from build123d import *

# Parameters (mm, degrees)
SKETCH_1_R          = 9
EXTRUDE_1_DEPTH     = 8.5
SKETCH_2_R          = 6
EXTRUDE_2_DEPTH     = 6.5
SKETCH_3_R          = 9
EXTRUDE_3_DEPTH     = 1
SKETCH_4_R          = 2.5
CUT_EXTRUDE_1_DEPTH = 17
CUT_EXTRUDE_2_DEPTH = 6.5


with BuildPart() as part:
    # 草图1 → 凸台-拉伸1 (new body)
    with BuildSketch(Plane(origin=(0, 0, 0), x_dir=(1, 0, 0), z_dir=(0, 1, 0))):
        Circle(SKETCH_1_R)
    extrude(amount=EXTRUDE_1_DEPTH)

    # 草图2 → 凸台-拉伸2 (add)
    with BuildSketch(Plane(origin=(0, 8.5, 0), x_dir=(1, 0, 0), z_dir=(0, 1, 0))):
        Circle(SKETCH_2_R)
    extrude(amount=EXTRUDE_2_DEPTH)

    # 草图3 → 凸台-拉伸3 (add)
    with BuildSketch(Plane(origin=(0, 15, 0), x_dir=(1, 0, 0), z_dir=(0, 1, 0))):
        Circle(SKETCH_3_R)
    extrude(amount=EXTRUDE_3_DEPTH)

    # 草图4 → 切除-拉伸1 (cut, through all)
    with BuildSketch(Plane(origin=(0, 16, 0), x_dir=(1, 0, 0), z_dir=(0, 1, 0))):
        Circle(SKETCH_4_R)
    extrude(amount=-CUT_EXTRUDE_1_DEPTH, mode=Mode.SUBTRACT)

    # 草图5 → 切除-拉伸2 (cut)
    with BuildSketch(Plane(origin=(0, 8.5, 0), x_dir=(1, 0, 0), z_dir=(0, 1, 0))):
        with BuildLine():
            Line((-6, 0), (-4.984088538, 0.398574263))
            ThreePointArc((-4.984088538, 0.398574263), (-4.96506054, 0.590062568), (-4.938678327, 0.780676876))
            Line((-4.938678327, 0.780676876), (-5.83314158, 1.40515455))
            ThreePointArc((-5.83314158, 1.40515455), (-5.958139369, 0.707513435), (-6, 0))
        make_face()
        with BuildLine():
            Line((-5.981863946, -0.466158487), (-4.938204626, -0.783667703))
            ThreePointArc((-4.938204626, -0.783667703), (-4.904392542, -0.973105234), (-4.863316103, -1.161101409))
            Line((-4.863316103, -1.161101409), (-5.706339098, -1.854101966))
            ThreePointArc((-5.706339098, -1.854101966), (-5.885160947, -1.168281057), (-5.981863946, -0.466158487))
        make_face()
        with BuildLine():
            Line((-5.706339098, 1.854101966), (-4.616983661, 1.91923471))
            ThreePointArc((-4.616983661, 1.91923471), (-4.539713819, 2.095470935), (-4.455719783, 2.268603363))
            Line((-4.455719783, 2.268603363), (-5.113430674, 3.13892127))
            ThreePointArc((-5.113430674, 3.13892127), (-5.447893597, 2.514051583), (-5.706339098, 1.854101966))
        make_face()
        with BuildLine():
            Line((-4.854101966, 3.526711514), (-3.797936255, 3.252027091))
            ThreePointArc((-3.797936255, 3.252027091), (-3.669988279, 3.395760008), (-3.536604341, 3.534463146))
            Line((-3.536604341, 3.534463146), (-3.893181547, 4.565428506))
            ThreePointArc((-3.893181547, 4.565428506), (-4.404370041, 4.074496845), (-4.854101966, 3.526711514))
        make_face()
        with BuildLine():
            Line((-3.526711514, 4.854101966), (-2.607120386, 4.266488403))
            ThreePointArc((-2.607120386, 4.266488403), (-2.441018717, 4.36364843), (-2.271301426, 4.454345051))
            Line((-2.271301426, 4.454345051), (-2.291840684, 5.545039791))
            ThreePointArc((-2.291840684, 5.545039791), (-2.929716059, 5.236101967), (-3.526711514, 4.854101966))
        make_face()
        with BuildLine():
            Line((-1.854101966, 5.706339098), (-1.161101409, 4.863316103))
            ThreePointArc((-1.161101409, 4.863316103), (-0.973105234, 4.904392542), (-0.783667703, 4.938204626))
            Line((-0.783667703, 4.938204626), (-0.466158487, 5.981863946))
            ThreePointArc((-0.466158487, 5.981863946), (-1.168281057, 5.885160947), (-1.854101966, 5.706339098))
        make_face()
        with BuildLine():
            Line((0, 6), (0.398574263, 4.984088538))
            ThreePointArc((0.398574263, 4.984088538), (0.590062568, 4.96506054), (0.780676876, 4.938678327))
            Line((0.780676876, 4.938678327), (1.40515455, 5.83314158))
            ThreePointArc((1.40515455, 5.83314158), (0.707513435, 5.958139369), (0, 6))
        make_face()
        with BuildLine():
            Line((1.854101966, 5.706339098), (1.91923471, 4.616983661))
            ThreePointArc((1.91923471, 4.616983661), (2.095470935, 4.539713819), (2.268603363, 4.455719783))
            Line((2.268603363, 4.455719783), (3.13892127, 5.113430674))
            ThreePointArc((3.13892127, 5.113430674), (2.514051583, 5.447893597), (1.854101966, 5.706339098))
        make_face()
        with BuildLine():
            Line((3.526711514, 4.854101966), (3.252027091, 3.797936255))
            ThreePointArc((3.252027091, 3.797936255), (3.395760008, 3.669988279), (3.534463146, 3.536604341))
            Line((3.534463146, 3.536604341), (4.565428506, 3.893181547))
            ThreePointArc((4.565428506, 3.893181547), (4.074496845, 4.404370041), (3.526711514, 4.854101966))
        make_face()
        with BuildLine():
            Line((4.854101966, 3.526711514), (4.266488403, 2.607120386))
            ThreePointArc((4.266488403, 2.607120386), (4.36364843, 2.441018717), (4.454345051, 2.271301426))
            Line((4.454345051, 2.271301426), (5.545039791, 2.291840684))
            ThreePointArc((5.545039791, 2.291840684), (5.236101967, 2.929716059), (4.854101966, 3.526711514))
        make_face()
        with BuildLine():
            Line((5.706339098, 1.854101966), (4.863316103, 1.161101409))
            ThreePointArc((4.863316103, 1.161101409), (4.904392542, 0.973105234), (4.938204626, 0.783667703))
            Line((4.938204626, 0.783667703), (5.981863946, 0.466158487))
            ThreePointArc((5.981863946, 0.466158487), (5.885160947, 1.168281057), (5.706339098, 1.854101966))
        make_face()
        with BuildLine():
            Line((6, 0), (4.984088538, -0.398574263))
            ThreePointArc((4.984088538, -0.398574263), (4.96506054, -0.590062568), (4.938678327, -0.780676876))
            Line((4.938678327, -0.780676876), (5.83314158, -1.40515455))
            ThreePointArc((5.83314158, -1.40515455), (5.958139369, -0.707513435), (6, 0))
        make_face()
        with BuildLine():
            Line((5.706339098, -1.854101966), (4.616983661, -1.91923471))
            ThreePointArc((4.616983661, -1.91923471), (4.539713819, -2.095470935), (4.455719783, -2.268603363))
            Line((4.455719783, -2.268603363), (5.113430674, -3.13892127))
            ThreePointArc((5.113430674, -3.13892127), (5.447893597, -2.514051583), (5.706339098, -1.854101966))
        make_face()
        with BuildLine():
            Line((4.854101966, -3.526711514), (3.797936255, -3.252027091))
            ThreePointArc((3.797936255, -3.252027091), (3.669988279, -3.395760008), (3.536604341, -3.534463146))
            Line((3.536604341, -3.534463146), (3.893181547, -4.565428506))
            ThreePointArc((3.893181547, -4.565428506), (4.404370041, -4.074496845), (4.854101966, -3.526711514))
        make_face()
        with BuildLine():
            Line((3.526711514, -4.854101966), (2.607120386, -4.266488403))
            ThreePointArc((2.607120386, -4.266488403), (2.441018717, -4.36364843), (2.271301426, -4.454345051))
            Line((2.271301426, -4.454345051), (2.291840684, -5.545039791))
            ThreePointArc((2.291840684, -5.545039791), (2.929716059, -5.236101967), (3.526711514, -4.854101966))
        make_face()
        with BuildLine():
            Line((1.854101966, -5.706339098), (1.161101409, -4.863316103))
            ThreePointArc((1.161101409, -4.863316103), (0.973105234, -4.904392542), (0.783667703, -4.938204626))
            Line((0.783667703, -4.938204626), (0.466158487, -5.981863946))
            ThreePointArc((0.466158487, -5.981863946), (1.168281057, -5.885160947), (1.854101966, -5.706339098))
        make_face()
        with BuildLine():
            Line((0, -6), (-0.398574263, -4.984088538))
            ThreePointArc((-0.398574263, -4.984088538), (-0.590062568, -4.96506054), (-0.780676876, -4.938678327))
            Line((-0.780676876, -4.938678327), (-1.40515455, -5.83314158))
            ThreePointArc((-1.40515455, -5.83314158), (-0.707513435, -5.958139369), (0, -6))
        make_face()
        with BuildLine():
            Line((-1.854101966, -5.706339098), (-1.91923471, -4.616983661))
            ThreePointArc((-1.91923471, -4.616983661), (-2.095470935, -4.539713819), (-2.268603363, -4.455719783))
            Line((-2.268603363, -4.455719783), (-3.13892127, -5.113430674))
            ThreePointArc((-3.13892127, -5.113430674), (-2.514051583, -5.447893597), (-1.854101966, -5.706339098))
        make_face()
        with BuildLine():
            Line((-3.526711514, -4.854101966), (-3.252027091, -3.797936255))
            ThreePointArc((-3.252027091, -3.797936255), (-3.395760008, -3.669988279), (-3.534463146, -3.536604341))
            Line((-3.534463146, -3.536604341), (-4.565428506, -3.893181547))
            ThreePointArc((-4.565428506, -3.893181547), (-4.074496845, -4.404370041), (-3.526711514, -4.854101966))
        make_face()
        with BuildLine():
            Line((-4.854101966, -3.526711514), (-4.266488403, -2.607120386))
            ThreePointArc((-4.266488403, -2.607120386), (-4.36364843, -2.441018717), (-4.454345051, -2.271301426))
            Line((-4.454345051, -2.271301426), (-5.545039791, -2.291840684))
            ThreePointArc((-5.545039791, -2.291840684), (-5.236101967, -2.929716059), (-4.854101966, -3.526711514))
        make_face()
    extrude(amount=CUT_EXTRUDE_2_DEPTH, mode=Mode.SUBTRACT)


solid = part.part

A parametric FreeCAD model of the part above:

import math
import FreeCAD as App
import Part
import Sketcher

doc = App.newDocument("Part")
body = doc.addObject("PartDesign::Body", "Body")

# Sketch on XZ plane
sketch1 = doc.addObject("Sketcher::SketchObject", "Sketch")
body.addObject(sketch1)
sketch1.AttachmentSupport = (doc.XZ_Plane, [""])
sketch1.MapMode = "FlatFace"
sketch1.addGeometry(Part.Circle(App.Vector(0, 0, 0), App.Vector(0, 0, 1), 9), False)
sketch1.addConstraint([
    Sketcher.Constraint("Coincident", 0, 3, -1, 1),
    Sketcher.Constraint("Diameter", 0, 18.0),
])
pad1 = doc.addObject("PartDesign::Pad", "Pad")
body.addObject(pad1)
pad1.Profile = sketch1
pad1.Length = 8.5
pad1.Reversed = True

# Sketch on XZ plane
sketch2 = doc.addObject("Sketcher::SketchObject", "Sketch001")
body.addObject(sketch2)
sketch2.AttachmentSupport = (doc.XZ_Plane, [""])
sketch2.MapMode = "FlatFace"
sketch2.AttachmentOffset = App.Placement(App.Vector(0, 0, -8.5), App.Rotation())
sketch2.addGeometry(Part.Circle(App.Vector(0, 0, 0), App.Vector(0, 0, 1), 6), False)
sketch2.addConstraint([
    Sketcher.Constraint("Coincident", 0, 3, -1, 1),
    Sketcher.Constraint("Diameter", 0, 12.0),
])
pad2 = doc.addObject("PartDesign::Pad", "Pad001")
body.addObject(pad2)
pad2.Profile = sketch2
pad2.Length = 6.5
pad2.Reversed = True

# Sketch on XZ plane
sketch3 = doc.addObject("Sketcher::SketchObject", "Sketch002")
body.addObject(sketch3)
sketch3.AttachmentSupport = (doc.XZ_Plane, [""])
sketch3.MapMode = "FlatFace"
sketch3.AttachmentOffset = App.Placement(App.Vector(0, 0, -15), App.Rotation())
sketch3.addGeometry(Part.Circle(App.Vector(0, 0, 0), App.Vector(0, 0, 1), 9), False)
sketch3.addConstraint([
    Sketcher.Constraint("Coincident", 0, 3, -1, 1),
    Sketcher.Constraint("Diameter", 0, 18.0),
])
pad3 = doc.addObject("PartDesign::Pad", "Pad002")
body.addObject(pad3)
pad3.Profile = sketch3
pad3.Length = 1
pad3.Reversed = True

# Sketch on XZ plane
sketch4 = doc.addObject("Sketcher::SketchObject", "Sketch003")
body.addObject(sketch4)
sketch4.AttachmentSupport = (doc.XZ_Plane, [""])
sketch4.MapMode = "FlatFace"
sketch4.AttachmentOffset = App.Placement(App.Vector(0, 0, -16), App.Rotation())
sketch4.addGeometry(Part.Circle(App.Vector(0, 0, 0), App.Vector(0, 0, 1), 2.5), False)
sketch4.addConstraint([
    Sketcher.Constraint("Coincident", 0, 3, -1, 1),
    Sketcher.Constraint("Diameter", 0, 5.0),
])
pocket1 = doc.addObject("PartDesign::Pocket", "Pocket")
body.addObject(pocket1)
pocket1.Profile = sketch4
pocket1.Type = "ThroughAll"
pocket1.Reversed = True

# Sketch on XZ plane
sketch5 = doc.addObject("Sketcher::SketchObject", "Sketch004")
body.addObject(sketch5)
sketch5.AttachmentSupport = (doc.XZ_Plane, [""])
sketch5.MapMode = "FlatFace"
sketch5.AttachmentOffset = App.Placement(App.Vector(0, 0, -8.5), App.Rotation())
sketch5.addGeometry([
    Part.LineSegment(App.Vector(-6, 0, 0), App.Vector(-4.984089, -0.398574, 0)),  # 0
    Part.ArcOfCircle(Part.Circle(App.Vector(0, 0, 0), App.Vector(0, 0, 1), 5), math.radians(-175.427824), math.radians(-171.01735)),  # 1
    Part.LineSegment(App.Vector(-4.938678, -0.780677, 0), App.Vector(-5.833142, -1.405155, 0)),  # 2
    Part.ArcOfCircle(Part.Circle(App.Vector(0, 0, 0), App.Vector(0, 0, 1), 6), math.radians(180), math.radians(193.544024)),  # 3
    Part.LineSegment(App.Vector(-4.938205, 0.783668, 0), App.Vector(-5.981864, 0.466158, 0)),  # 4
    Part.ArcOfCircle(Part.Circle(App.Vector(0, 0, 0), App.Vector(0, 0, 1), 6), math.radians(162), math.radians(175.544024)),  # 5
    Part.LineSegment(App.Vector(-5.706339, 1.854102, 0), App.Vector(-4.863316, 1.161101, 0)),  # 6
    Part.ArcOfCircle(Part.Circle(App.Vector(-0.000001, 0, 0), App.Vector(0, 0, 1), 4.999999), math.radians(166.572175), math.radians(170.982651)),  # 7
    Part.LineSegment(App.Vector(-5.706339, -1.854102, 0), App.Vector(-4.616984, -1.919235, 0)),  # 8
    Part.ArcOfCircle(Part.Circle(App.Vector(0, 0, 0), App.Vector(0, 0, 1), 5), math.radians(-157.427824), math.radians(-153.01735)),  # 9
    Part.LineSegment(App.Vector(-4.45572, -2.268603, 0), App.Vector(-5.113431, -3.138921, 0)),  # 10
    Part.ArcOfCircle(Part.Circle(App.Vector(0, 0, 0), App.Vector(0, 0, 1), 6), math.radians(-162), math.radians(-148.455976)),  # 11
    Part.LineSegment(App.Vector(-4.854102, -3.526712, 0), App.Vector(-3.797936, -3.252027, 0)),  # 12
    Part.ArcOfCircle(Part.Circle(App.Vector(0, 0, 0), App.Vector(0, 0, 1), 5), math.radians(-139.427825), math.radians(-135.01735)),  # 13
    Part.LineSegment(App.Vector(-3.536604, -3.534463, 0), App.Vector(-3.893182, -4.565429, 0)),  # 14
    Part.ArcOfCircle(Part.Circle(App.Vector(0, 0, 0), App.Vector(0, 0, 1), 6), math.radians(-144), math.radians(-130.455976)),  # 15
    Part.LineSegment(App.Vector(-3.526712, -4.854102, 0), App.Vector(-2.60712, -4.266488, 0)),  # 16
    Part.ArcOfCircle(Part.Circle(App.Vector(0, 0, 0), App.Vector(0, 0, 1), 5), math.radians(-121.427824), math.radians(-117.01735)),  # 17
    Part.LineSegment(App.Vector(-2.271301, -4.454345, 0), App.Vector(-2.291841, -5.54504, 0)),  # 18
    Part.ArcOfCircle(Part.Circle(App.Vector(0, 0, 0), App.Vector(0, 0, 1), 6), math.radians(-126), math.radians(-112.455976)),  # 19
    Part.LineSegment(App.Vector(-1.854102, -5.706339, 0), App.Vector(-1.161101, -4.863316, 0)),  # 20
    Part.ArcOfCircle(Part.Circle(App.Vector(0, -0.000001, 0), App.Vector(0, 0, 1), 4.999999), math.radians(-103.427825), math.radians(-99.017349)),  # 21
    Part.LineSegment(App.Vector(-0.783668, -4.938205, 0), App.Vector(-0.466158, -5.981864, 0)),  # 22
    Part.ArcOfCircle(Part.Circle(App.Vector(0, 0, 0), App.Vector(0, 0, 1), 6), math.radians(-108), math.radians(-94.455976)),  # 23
    Part.LineSegment(App.Vector(0, -6, 0), App.Vector(0.398574, -4.984089, 0)),  # 24
    Part.ArcOfCircle(Part.Circle(App.Vector(0, 0, 0), App.Vector(0, 0, 1), 5), math.radians(-85.427824), math.radians(-81.01735)),  # 25
    Part.LineSegment(App.Vector(0.780677, -4.938678, 0), App.Vector(1.405155, -5.833142, 0)),  # 26
    Part.ArcOfCircle(Part.Circle(App.Vector(0, 0, 0), App.Vector(0, 0, 1), 6), math.radians(-90), math.radians(-76.455976)),  # 27
    Part.LineSegment(App.Vector(1.854102, -5.706339, 0), App.Vector(1.919235, -4.616984, 0)),  # 28
    Part.ArcOfCircle(Part.Circle(App.Vector(0, 0, 0), App.Vector(0, 0, 1), 5), math.radians(-67.427824), math.radians(-63.01735)),  # 29
    Part.LineSegment(App.Vector(2.268603, -4.45572, 0), App.Vector(3.138921, -5.113431, 0)),  # 30
    Part.ArcOfCircle(Part.Circle(App.Vector(0, 0, 0), App.Vector(0, 0, 1), 6), math.radians(-72), math.radians(-58.455976)),  # 31
    Part.LineSegment(App.Vector(3.526712, -4.854102, 0), App.Vector(3.252027, -3.797936, 0)),  # 32
    Part.ArcOfCircle(Part.Circle(App.Vector(0, 0, 0), App.Vector(0, 0, 1), 5), math.radians(-49.427825), math.radians(-45.01735)),  # 33
    Part.LineSegment(App.Vector(3.534463, -3.536604, 0), App.Vector(4.565429, -3.893182, 0)),  # 34
    Part.ArcOfCircle(Part.Circle(App.Vector(0, 0, 0), App.Vector(0, 0, 1), 6), math.radians(-54), math.radians(-40.455976)),  # 35
    Part.LineSegment(App.Vector(4.854102, -3.526712, 0), App.Vector(4.266488, -2.60712, 0)),  # 36
    Part.ArcOfCircle(Part.Circle(App.Vector(0, 0, 0), App.Vector(0, 0, 1), 5), math.radians(-31.427824), math.radians(-27.01735)),  # 37
    Part.LineSegment(App.Vector(4.454345, -2.271301, 0), App.Vector(5.54504, -2.291841, 0)),  # 38
    Part.ArcOfCircle(Part.Circle(App.Vector(0, 0, 0), App.Vector(0, 0, 1), 6), math.radians(-36), math.radians(-22.455976)),  # 39
    Part.LineSegment(App.Vector(5.706339, -1.854102, 0), App.Vector(4.863316, -1.161101, 0)),  # 40
    Part.ArcOfCircle(Part.Circle(App.Vector(0.000001, 0, 0), App.Vector(0, 0, 1), 4.999999), math.radians(-13.427825), math.radians(-9.017349)),  # 41
    Part.LineSegment(App.Vector(4.938205, -0.783668, 0), App.Vector(5.981864, -0.466158, 0)),  # 42
    Part.ArcOfCircle(Part.Circle(App.Vector(0, 0, 0), App.Vector(0, 0, 1), 6), math.radians(-18), math.radians(-4.455976)),  # 43
    Part.LineSegment(App.Vector(6, 0, 0), App.Vector(4.984089, 0.398574, 0)),  # 44
    Part.ArcOfCircle(Part.Circle(App.Vector(0, 0, 0), App.Vector(0, 0, 1), 5), math.radians(4.572176), math.radians(8.98265)),  # 45
    Part.LineSegment(App.Vector(4.938678, 0.780677, 0), App.Vector(5.833142, 1.405155, 0)),  # 46
    Part.ArcOfCircle(Part.Circle(App.Vector(0, 0, 0), App.Vector(0, 0, 1), 6), math.radians(0), math.radians(13.544024)),  # 47
    Part.LineSegment(App.Vector(5.706339, 1.854102, 0), App.Vector(4.616984, 1.919235, 0)),  # 48
    Part.ArcOfCircle(Part.Circle(App.Vector(0, 0, 0), App.Vector(0, 0, 1), 5), math.radians(22.572176), math.radians(26.98265)),  # 49
    Part.LineSegment(App.Vector(4.45572, 2.268603, 0), App.Vector(5.113431, 3.138921, 0)),  # 50
    Part.ArcOfCircle(Part.Circle(App.Vector(0, 0, 0), App.Vector(0, 0, 1), 6), math.radians(18), math.radians(31.544024)),  # 51
    Part.LineSegment(App.Vector(4.854102, 3.526712, 0), App.Vector(3.797936, 3.252027, 0)),  # 52
    Part.ArcOfCircle(Part.Circle(App.Vector(0, 0, 0), App.Vector(0, 0, 1), 5), math.radians(40.572175), math.radians(44.98265)),  # 53
    Part.LineSegment(App.Vector(3.536604, 3.534463, 0), App.Vector(3.893182, 4.565429, 0)),  # 54
    Part.ArcOfCircle(Part.Circle(App.Vector(0, 0, 0), App.Vector(0, 0, 1), 6), math.radians(36), math.radians(49.544024)),  # 55
    Part.LineSegment(App.Vector(3.526712, 4.854102, 0), App.Vector(2.60712, 4.266488, 0)),  # 56
    Part.ArcOfCircle(Part.Circle(App.Vector(0, 0, 0), App.Vector(0, 0, 1), 5), math.radians(58.572176), math.radians(62.98265)),  # 57
    Part.LineSegment(App.Vector(2.271301, 4.454345, 0), App.Vector(2.291841, 5.54504, 0)),  # 58
    Part.ArcOfCircle(Part.Circle(App.Vector(0, 0, 0), App.Vector(0, 0, 1), 6), math.radians(54), math.radians(67.544024)),  # 59
    Part.LineSegment(App.Vector(1.854102, 5.706339, 0), App.Vector(1.161101, 4.863316, 0)),  # 60
    Part.ArcOfCircle(Part.Circle(App.Vector(0, 0.000001, 0), App.Vector(0, 0, 1), 4.999999), math.radians(76.572175), math.radians(80.982651)),  # 61
    Part.LineSegment(App.Vector(0.783668, 4.938205, 0), App.Vector(0.466158, 5.981864, 0)),  # 62
    Part.ArcOfCircle(Part.Circle(App.Vector(0, 0, 0), App.Vector(0, 0, 1), 6), math.radians(72), math.radians(85.544024)),  # 63
    Part.LineSegment(App.Vector(0, 6, 0), App.Vector(-0.398574, 4.984089, 0)),  # 64
    Part.ArcOfCircle(Part.Circle(App.Vector(0, 0, 0), App.Vector(0, 0, 1), 5), math.radians(94.572176), math.radians(98.98265)),  # 65
    Part.LineSegment(App.Vector(-0.780677, 4.938678, 0), App.Vector(-1.405155, 5.833142, 0)),  # 66
    Part.ArcOfCircle(Part.Circle(App.Vector(0, 0, 0), App.Vector(0, 0, 1), 6), math.radians(90), math.radians(103.544024)),  # 67
    Part.LineSegment(App.Vector(-1.854102, 5.706339, 0), App.Vector(-1.919235, 4.616984, 0)),  # 68
    Part.ArcOfCircle(Part.Circle(App.Vector(0, 0, 0), App.Vector(0, 0, 1), 5), math.radians(112.572176), math.radians(116.98265)),  # 69
    Part.LineSegment(App.Vector(-2.268603, 4.45572, 0), App.Vector(-3.138921, 5.113431, 0)),  # 70
    Part.ArcOfCircle(Part.Circle(App.Vector(0, 0, 0), App.Vector(0, 0, 1), 6), math.radians(108), math.radians(121.544024)),  # 71
    Part.LineSegment(App.Vector(-3.526712, 4.854102, 0), App.Vector(-3.252027, 3.797936, 0)),  # 72
    Part.ArcOfCircle(Part.Circle(App.Vector(0, 0, 0), App.Vector(0, 0, 1), 5), math.radians(130.572175), math.radians(134.98265)),  # 73
    Part.LineSegment(App.Vector(-3.534463, 3.536604, 0), App.Vector(-4.565429, 3.893182, 0)),  # 74
    Part.ArcOfCircle(Part.Circle(App.Vector(0, 0, 0), App.Vector(0, 0, 1), 6), math.radians(126), math.radians(139.544024)),  # 75
    Part.LineSegment(App.Vector(-4.854102, 3.526712, 0), App.Vector(-4.266488, 2.60712, 0)),  # 76
    Part.ArcOfCircle(Part.Circle(App.Vector(0, 0, 0), App.Vector(0, 0, 1), 5), math.radians(148.572176), math.radians(152.98265)),  # 77
    Part.LineSegment(App.Vector(-4.454345, 2.271301, 0), App.Vector(-5.54504, 2.291841, 0)),  # 78
    Part.ArcOfCircle(Part.Circle(App.Vector(0, 0, 0), App.Vector(0, 0, 1), 6), math.radians(144), math.radians(157.544024)),  # 79
], False)
sketch5.addConstraint([
    Sketcher.Constraint("Coincident", 0, 2, 1, 1),
    Sketcher.Constraint("Coincident", 1, 2, 2, 1),
    Sketcher.Constraint("Coincident", 2, 2, 3, 2),
    Sketcher.Constraint("Coincident", 3, 1, 0, 1),
    Sketcher.Constraint("Coincident", 4, 2, 5, 2),
    Sketcher.Constraint("Coincident", 5, 1, 6, 1),
    Sketcher.Constraint("Coincident", 6, 2, 7, 1),
    Sketcher.Constraint("Coincident", 7, 2, 4, 1),
    Sketcher.Constraint("Coincident", 8, 2, 9, 1),
    Sketcher.Constraint("Coincident", 9, 2, 10, 1),
    Sketcher.Constraint("Coincident", 10, 2, 11, 2),
    Sketcher.Constraint("Coincident", 11, 1, 8, 1),
    Sketcher.Constraint("Coincident", 12, 2, 13, 1),
    Sketcher.Constraint("Coincident", 13, 2, 14, 1),
    Sketcher.Constraint("Coincident", 14, 2, 15, 2),
    Sketcher.Constraint("Coincident", 15, 1, 12, 1),
    Sketcher.Constraint("Coincident", 16, 2, 17, 1),
    Sketcher.Constraint("Coincident", 17, 2, 18, 1),
    Sketcher.Constraint("Coincident", 18, 2, 19, 2),
    Sketcher.Constraint("Coincident", 19, 1, 16, 1),
    Sketcher.Constraint("Coincident", 20, 2, 21, 1),
    Sketcher.Constraint("Coincident", 21, 2, 22, 1),
    Sketcher.Constraint("Coincident", 22, 2, 23, 2),
    Sketcher.Constraint("Coincident", 23, 1, 20, 1),
    Sketcher.Constraint("Coincident", 24, 2, 25, 1),
    Sketcher.Constraint("Coincident", 25, 2, 26, 1),
    Sketcher.Constraint("Coincident", 26, 2, 27, 2),
    Sketcher.Constraint("Coincident", 27, 1, 24, 1),
    Sketcher.Constraint("Coincident", 28, 2, 29, 1),
    Sketcher.Constraint("Coincident", 29, 2, 30, 1),
    Sketcher.Constraint("Coincident", 30, 2, 31, 2),
    Sketcher.Constraint("Coincident", 31, 1, 28, 1),
    Sketcher.Constraint("Coincident", 32, 2, 33, 1),
    Sketcher.Constraint("Coincident", 33, 2, 34, 1),
    Sketcher.Constraint("Coincident", 34, 2, 35, 2),
    Sketcher.Constraint("Coincident", 35, 1, 32, 1),
    Sketcher.Constraint("Coincident", 36, 2, 37, 1),
    Sketcher.Constraint("Coincident", 37, 2, 38, 1),
    Sketcher.Constraint("Coincident", 38, 2, 39, 2),
    Sketcher.Constraint("Coincident", 39, 1, 36, 1),
    Sketcher.Constraint("Coincident", 40, 2, 41, 1),
    Sketcher.Constraint("Coincident", 41, 2, 42, 1),
    Sketcher.Constraint("Coincident", 42, 2, 43, 2),
    Sketcher.Constraint("Coincident", 43, 1, 40, 1),
    Sketcher.Constraint("Coincident", 44, 2, 45, 1),
    Sketcher.Constraint("Coincident", 45, 2, 46, 1),
    Sketcher.Constraint("Coincident", 46, 2, 47, 2),
    Sketcher.Constraint("Coincident", 47, 1, 44, 1),
    Sketcher.Constraint("Coincident", 48, 2, 49, 1),
    Sketcher.Constraint("Coincident", 49, 2, 50, 1),
    Sketcher.Constraint("Coincident", 50, 2, 51, 2),
    Sketcher.Constraint("Coincident", 51, 1, 48, 1),
    Sketcher.Constraint("Coincident", 52, 2, 53, 1),
    Sketcher.Constraint("Coincident", 53, 2, 54, 1),
    Sketcher.Constraint("Coincident", 54, 2, 55, 2),
    Sketcher.Constraint("Coincident", 55, 1, 52, 1),
    Sketcher.Constraint("Coincident", 56, 2, 57, 1),
    Sketcher.Constraint("Coincident", 57, 2, 58, 1),
    Sketcher.Constraint("Coincident", 58, 2, 59, 2),
    Sketcher.Constraint("Coincident", 59, 1, 56, 1),
    Sketcher.Constraint("Coincident", 60, 2, 61, 1),
    Sketcher.Constraint("Coincident", 61, 2, 62, 1),
    Sketcher.Constraint("Coincident", 62, 2, 63, 2),
    Sketcher.Constraint("Coincident", 63, 1, 60, 1),
    Sketcher.Constraint("Coincident", 64, 2, 65, 1),
    Sketcher.Constraint("Coincident", 65, 2, 66, 1),
    Sketcher.Constraint("Coincident", 66, 2, 67, 2),
    Sketcher.Constraint("Coincident", 67, 1, 64, 1),
    Sketcher.Constraint("Coincident", 68, 2, 69, 1),
    Sketcher.Constraint("Coincident", 69, 2, 70, 1),
    Sketcher.Constraint("Coincident", 70, 2, 71, 2),
    Sketcher.Constraint("Coincident", 71, 1, 68, 1),
    Sketcher.Constraint("Coincident", 72, 2, 73, 1),
    Sketcher.Constraint("Coincident", 73, 2, 74, 1),
    Sketcher.Constraint("Coincident", 74, 2, 75, 2),
    Sketcher.Constraint("Coincident", 75, 1, 72, 1),
    Sketcher.Constraint("Coincident", 76, 2, 77, 1),
    Sketcher.Constraint("Coincident", 77, 2, 78, 1),
    Sketcher.Constraint("Coincident", 78, 2, 79, 2),
    Sketcher.Constraint("Coincident", 79, 1, 76, 1),
    Sketcher.Constraint("Coincident", 1, 3, -1, 1),
    Sketcher.Constraint("Coincident", 3, 3, -1, 1),
    Sketcher.Constraint("Coincident", 5, 3, -1, 1),
    Sketcher.Constraint("Coincident", 7, 3, -1, 1),
    Sketcher.Constraint("Coincident", 9, 3, -1, 1),
    Sketcher.Constraint("Coincident", 11, 3, -1, 1),
    Sketcher.Constraint("Coincident", 13, 3, -1, 1),
    Sketcher.Constraint("Coincident", 15, 3, -1, 1),
    Sketcher.Constraint("Coincident", 17, 3, -1, 1),
    Sketcher.Constraint("Coincident", 19, 3, -1, 1),
    Sketcher.Constraint("Coincident", 21, 3, -1, 1),
    Sketcher.Constraint("Coincident", 23, 3, -1, 1),
    Sketcher.Constraint("Coincident", 25, 3, -1, 1),
    Sketcher.Constraint("Coincident", 27, 3, -1, 1),
    Sketcher.Constraint("Coincident", 29, 3, -1, 1),
    Sketcher.Constraint("Coincident", 31, 3, -1, 1),
    Sketcher.Constraint("Coincident", 33, 3, -1, 1),
    Sketcher.Constraint("Coincident", 35, 3, -1, 1),
    Sketcher.Constraint("Coincident", 37, 3, -1, 1),
    Sketcher.Constraint("Coincident", 39, 3, -1, 1),
    Sketcher.Constraint("Coincident", 41, 3, -1, 1),
    Sketcher.Constraint("Coincident", 43, 3, -1, 1),
    Sketcher.Constraint("Coincident", 45, 3, -1, 1),
    Sketcher.Constraint("Coincident", 47, 3, -1, 1),
    Sketcher.Constraint("Coincident", 49, 3, -1, 1),
    Sketcher.Constraint("Coincident", 51, 3, -1, 1),
    Sketcher.Constraint("Coincident", 53, 3, -1, 1),
    Sketcher.Constraint("Coincident", 55, 3, -1, 1),
    Sketcher.Constraint("Coincident", 57, 3, -1, 1),
    Sketcher.Constraint("Coincident", 59, 3, -1, 1),
    Sketcher.Constraint("Coincident", 61, 3, -1, 1),
    Sketcher.Constraint("Coincident", 63, 3, -1, 1),
    Sketcher.Constraint("Coincident", 65, 3, -1, 1),
    Sketcher.Constraint("Coincident", 67, 3, -1, 1),
    Sketcher.Constraint("Coincident", 69, 3, -1, 1),
    Sketcher.Constraint("Coincident", 71, 3, -1, 1),
    Sketcher.Constraint("Coincident", 73, 3, -1, 1),
    Sketcher.Constraint("Coincident", 75, 3, -1, 1),
    Sketcher.Constraint("Coincident", 77, 3, -1, 1),
    Sketcher.Constraint("Coincident", 79, 3, -1, 1),
    Sketcher.Constraint("Equal", 3, 5),
    Sketcher.Constraint("Equal", 1, 7),
    Sketcher.Constraint("Equal", 7, 9),
    Sketcher.Constraint("Equal", 5, 11),
    Sketcher.Constraint("Equal", 9, 13),
    Sketcher.Constraint("Equal", 11, 15),
    Sketcher.Constraint("Equal", 13, 17),
    Sketcher.Constraint("Equal", 15, 19),
    Sketcher.Constraint("Equal", 17, 21),
    Sketcher.Constraint("Equal", 19, 23),
    Sketcher.Constraint("Equal", 21, 25),
    Sketcher.Constraint("Equal", 23, 27),
    Sketcher.Constraint("Equal", 25, 29),
    Sketcher.Constraint("Equal", 27, 31),
    Sketcher.Constraint("Equal", 29, 33),
    Sketcher.Constraint("Equal", 31, 35),
    Sketcher.Constraint("Equal", 33, 37),
    Sketcher.Constraint("Equal", 35, 39),
    Sketcher.Constraint("Equal", 37, 41),
    Sketcher.Constraint("Equal", 39, 43),
    Sketcher.Constraint("Equal", 41, 45),
    Sketcher.Constraint("Equal", 43, 47),
    Sketcher.Constraint("Equal", 45, 49),
    Sketcher.Constraint("Equal", 47, 51),
    Sketcher.Constraint("Equal", 49, 53),
    Sketcher.Constraint("Equal", 51, 55),
    Sketcher.Constraint("Equal", 53, 57),
    Sketcher.Constraint("Equal", 55, 59),
    Sketcher.Constraint("Equal", 57, 61),
    Sketcher.Constraint("Equal", 59, 63),
    Sketcher.Constraint("Equal", 61, 65),
    Sketcher.Constraint("Equal", 63, 67),
    Sketcher.Constraint("Equal", 65, 69),
    Sketcher.Constraint("Equal", 67, 71),
    Sketcher.Constraint("Equal", 69, 73),
    Sketcher.Constraint("Equal", 71, 75),
    Sketcher.Constraint("Equal", 73, 77),
    Sketcher.Constraint("Equal", 75, 79),
    Sketcher.Constraint("PointOnObject", 3, 1, -1),
    Sketcher.Constraint("PointOnObject", 27, 1, -2),
    Sketcher.Constraint("PointOnObject", 47, 1, -1),
    Sketcher.Constraint("PointOnObject", 67, 1, -2),
    Sketcher.Constraint("Perpendicular", 6, 20),
    Sketcher.Constraint("Perpendicular", 4, 22),
    Sketcher.Constraint("Perpendicular", 0, 24),
    Sketcher.Constraint("Perpendicular", 2, 26),
    Sketcher.Constraint("Perpendicular", 8, 28),
    Sketcher.Constraint("Perpendicular", 10, 30),
    Sketcher.Constraint("Perpendicular", 12, 32),
    Sketcher.Constraint("Perpendicular", 14, 34),
    Sketcher.Constraint("Perpendicular", 16, 36),
    Sketcher.Constraint("Perpendicular", 18, 38),
    Sketcher.Constraint("Perpendicular", 20, 40),
    Sketcher.Constraint("Perpendicular", 22, 42),
    Sketcher.Constraint("Perpendicular", 24, 44),
    Sketcher.Constraint("Perpendicular", 26, 46),
    Sketcher.Constraint("Perpendicular", 28, 48),
    Sketcher.Constraint("Perpendicular", 30, 50),
    Sketcher.Constraint("Perpendicular", 32, 52),
    Sketcher.Constraint("Perpendicular", 34, 54),
    Sketcher.Constraint("Perpendicular", 36, 56),
    Sketcher.Constraint("Perpendicular", 38, 58),
    Sketcher.Constraint("Perpendicular", 40, 60),
    Sketcher.Constraint("Perpendicular", 42, 62),
    Sketcher.Constraint("Perpendicular", 44, 64),
    Sketcher.Constraint("Perpendicular", 46, 66),
    Sketcher.Constraint("Perpendicular", 48, 68),
    Sketcher.Constraint("Perpendicular", 50, 70),
    Sketcher.Constraint("Perpendicular", 52, 72),
    Sketcher.Constraint("Perpendicular", 54, 74),
    Sketcher.Constraint("Perpendicular", 56, 76),
    Sketcher.Constraint("Perpendicular", 58, 78),
    Sketcher.Constraint("Horizontal", 23, 1, 31, 1),
    Sketcher.Constraint("Horizontal", 19, 1, 35, 1),
    Sketcher.Constraint("Horizontal", 15, 1, 39, 1),
    Sketcher.Constraint("Horizontal", 11, 1, 43, 1),
    Sketcher.Constraint("Horizontal", 5, 1, 51, 1),
    Sketcher.Constraint("Horizontal", 63, 1, 71, 1),
    Sketcher.Constraint("Horizontal", 59, 1, 75, 1),
    Sketcher.Constraint("Horizontal", 55, 1, 79, 1),
    Sketcher.Constraint("Vertical", 5, 1, 11, 1),
    Sketcher.Constraint("Vertical", 39, 1, 55, 1),
    Sketcher.Constraint("Vertical", 35, 1, 59, 1),
    Sketcher.Constraint("Vertical", 31, 1, 63, 1),
    Sketcher.Constraint("Equal", 2, 4),
    Sketcher.Constraint("Equal", 0, 6),
    Sketcher.Constraint("Equal", 6, 8),
    Sketcher.Constraint("Equal", 4, 10),
    Sketcher.Constraint("Equal", 8, 12),
    Sketcher.Constraint("Equal", 10, 14),
    Sketcher.Constraint("Equal", 12, 16),
    Sketcher.Constraint("Equal", 14, 18),
    Sketcher.Constraint("Equal", 16, 20),
    Sketcher.Constraint("Equal", 18, 22),
    Sketcher.Constraint("Equal", 22, 26),
    Sketcher.Constraint("Equal", 26, 30),
    Sketcher.Constraint("Equal", 28, 32),
    Sketcher.Constraint("Equal", 30, 34),
    Sketcher.Constraint("Equal", 34, 38),
    Sketcher.Constraint("Equal", 38, 42),
    Sketcher.Constraint("Equal", 42, 46),
    Sketcher.Constraint("Equal", 46, 50),
    Sketcher.Constraint("Equal", 50, 54),
    Sketcher.Constraint("Equal", 54, 58),
    Sketcher.Constraint("Equal", 58, 62),
    Sketcher.Constraint("Equal", 62, 66),
    Sketcher.Constraint("Equal", 66, 70),
    Sketcher.Constraint("Equal", 70, 74),
    Sketcher.Constraint("Equal", 74, 78),
    Sketcher.Constraint("Radius", 1, 5.0),
    Sketcher.Constraint("Radius", 3, 6.0),
    Sketcher.Constraint("Distance", 0, 1.091301),
    Sketcher.Constraint("DistanceY", -1, 1, 5, 1, 1.854102),
    Sketcher.Constraint("DistanceX", 15, 1, -1, 1, 4.854102),
    Sketcher.Constraint("DistanceX", 17, 2, -1, 1, 2.271301),
    Sketcher.Constraint("Distance", 2, 1.090888),
    Sketcher.Constraint("DistanceX", 1, 2, -1, 1, 4.938678),
    Sketcher.Constraint("DistanceY", -1, 1, 4, 2, 0.466158),
    Sketcher.Constraint("DistanceX", 9, 2, -1, 1, 4.45572),
    Sketcher.Constraint("DistanceX", 14, 2, -1, 1, 3.893182),
])
pocket2 = doc.addObject("PartDesign::Pocket", "Pocket001")
body.addObject(pocket2)
pocket2.Profile = sketch5
pocket2.Length = 6.5

doc.recompute()
